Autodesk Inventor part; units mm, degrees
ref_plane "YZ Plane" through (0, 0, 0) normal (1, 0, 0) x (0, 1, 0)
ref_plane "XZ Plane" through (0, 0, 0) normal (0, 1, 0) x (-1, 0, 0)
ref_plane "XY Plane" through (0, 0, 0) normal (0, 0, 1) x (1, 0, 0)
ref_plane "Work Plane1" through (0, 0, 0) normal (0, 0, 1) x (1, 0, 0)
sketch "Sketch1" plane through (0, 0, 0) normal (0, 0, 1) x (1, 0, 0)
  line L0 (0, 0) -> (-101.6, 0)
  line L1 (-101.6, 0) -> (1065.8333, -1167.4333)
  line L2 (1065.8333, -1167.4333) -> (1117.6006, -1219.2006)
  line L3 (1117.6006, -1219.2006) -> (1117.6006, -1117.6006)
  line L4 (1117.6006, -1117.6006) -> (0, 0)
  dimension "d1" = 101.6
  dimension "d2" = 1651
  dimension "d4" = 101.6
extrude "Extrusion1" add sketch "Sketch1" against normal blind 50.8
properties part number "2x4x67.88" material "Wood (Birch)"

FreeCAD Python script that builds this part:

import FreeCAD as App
import Part
import Sketcher

V = App.Vector
Q = App.Units.Quantity


def add_polygon(sketch, points):
    """Adds a closed chain of lines whose ends are joined by coincident constraints."""
    first, n = sketch.GeometryCount, len(points)
    for a, b in zip(points, points[1:] + points[:1]):
        sketch.addGeometry(Part.LineSegment(App.Vector(*a, 0), App.Vector(*b, 0)), False)
    for i in range(n):
        sketch.addConstraint(Sketcher.Constraint("Coincident", first + i, 2, first + (i + 1) % n, 1))

doc = App.newDocument("Part")
params = doc.addObject("Spreadsheet::Sheet", "Params")
for row, (alias, value) in enumerate([
    ("sketch1_width", "4 in"),
    ("pad1_length", "2 in"),
], start=1):
    params.set(f"A{row}", alias)
    params.set(f"B{row}", "=" + value)
    params.setAlias(f"B{row}", alias)

body = doc.addObject("PartDesign::Body", "Body")

sketch1 = body.newObject("Sketcher::SketchObject", "Sketch")
sketch1.AttachmentSupport = (doc.getObject("XY_Plane"), [""])
sketch1.MapMode = "FlatFace"
add_polygon(sketch1, [(1118, -1118), (0, 0), (-102, 0), (1118, -1219)])
sketch1.addConstraint(Sketcher.Constraint("Horizontal", 1))
sketch1.addConstraint(Sketcher.Constraint("Vertical", 3))
sketch1.addConstraint(Sketcher.Constraint("Coincident", 0, 2, -1, 1))
sketch1.addConstraint(Sketcher.Constraint("Parallel", 0, 2))
sketch1.addConstraint(Sketcher.Constraint("Equal", 1, 3))
sketch1.addConstraint(Sketcher.Constraint("DistanceX", 1, 2, 1, 1, Q("4 in")))
sketch1.addConstraint(Sketcher.Constraint("Distance", 0, 1580.526))
sketch1.setExpression("Constraints[9]", "Params.sketch1_width")
pad1 = body.newObject("PartDesign::Pad", "Pad")
pad1.Profile = sketch1
pad1.setExpression("Length", "Params.pad1_length")
pad1.Reversed = True

doc.recompute()
